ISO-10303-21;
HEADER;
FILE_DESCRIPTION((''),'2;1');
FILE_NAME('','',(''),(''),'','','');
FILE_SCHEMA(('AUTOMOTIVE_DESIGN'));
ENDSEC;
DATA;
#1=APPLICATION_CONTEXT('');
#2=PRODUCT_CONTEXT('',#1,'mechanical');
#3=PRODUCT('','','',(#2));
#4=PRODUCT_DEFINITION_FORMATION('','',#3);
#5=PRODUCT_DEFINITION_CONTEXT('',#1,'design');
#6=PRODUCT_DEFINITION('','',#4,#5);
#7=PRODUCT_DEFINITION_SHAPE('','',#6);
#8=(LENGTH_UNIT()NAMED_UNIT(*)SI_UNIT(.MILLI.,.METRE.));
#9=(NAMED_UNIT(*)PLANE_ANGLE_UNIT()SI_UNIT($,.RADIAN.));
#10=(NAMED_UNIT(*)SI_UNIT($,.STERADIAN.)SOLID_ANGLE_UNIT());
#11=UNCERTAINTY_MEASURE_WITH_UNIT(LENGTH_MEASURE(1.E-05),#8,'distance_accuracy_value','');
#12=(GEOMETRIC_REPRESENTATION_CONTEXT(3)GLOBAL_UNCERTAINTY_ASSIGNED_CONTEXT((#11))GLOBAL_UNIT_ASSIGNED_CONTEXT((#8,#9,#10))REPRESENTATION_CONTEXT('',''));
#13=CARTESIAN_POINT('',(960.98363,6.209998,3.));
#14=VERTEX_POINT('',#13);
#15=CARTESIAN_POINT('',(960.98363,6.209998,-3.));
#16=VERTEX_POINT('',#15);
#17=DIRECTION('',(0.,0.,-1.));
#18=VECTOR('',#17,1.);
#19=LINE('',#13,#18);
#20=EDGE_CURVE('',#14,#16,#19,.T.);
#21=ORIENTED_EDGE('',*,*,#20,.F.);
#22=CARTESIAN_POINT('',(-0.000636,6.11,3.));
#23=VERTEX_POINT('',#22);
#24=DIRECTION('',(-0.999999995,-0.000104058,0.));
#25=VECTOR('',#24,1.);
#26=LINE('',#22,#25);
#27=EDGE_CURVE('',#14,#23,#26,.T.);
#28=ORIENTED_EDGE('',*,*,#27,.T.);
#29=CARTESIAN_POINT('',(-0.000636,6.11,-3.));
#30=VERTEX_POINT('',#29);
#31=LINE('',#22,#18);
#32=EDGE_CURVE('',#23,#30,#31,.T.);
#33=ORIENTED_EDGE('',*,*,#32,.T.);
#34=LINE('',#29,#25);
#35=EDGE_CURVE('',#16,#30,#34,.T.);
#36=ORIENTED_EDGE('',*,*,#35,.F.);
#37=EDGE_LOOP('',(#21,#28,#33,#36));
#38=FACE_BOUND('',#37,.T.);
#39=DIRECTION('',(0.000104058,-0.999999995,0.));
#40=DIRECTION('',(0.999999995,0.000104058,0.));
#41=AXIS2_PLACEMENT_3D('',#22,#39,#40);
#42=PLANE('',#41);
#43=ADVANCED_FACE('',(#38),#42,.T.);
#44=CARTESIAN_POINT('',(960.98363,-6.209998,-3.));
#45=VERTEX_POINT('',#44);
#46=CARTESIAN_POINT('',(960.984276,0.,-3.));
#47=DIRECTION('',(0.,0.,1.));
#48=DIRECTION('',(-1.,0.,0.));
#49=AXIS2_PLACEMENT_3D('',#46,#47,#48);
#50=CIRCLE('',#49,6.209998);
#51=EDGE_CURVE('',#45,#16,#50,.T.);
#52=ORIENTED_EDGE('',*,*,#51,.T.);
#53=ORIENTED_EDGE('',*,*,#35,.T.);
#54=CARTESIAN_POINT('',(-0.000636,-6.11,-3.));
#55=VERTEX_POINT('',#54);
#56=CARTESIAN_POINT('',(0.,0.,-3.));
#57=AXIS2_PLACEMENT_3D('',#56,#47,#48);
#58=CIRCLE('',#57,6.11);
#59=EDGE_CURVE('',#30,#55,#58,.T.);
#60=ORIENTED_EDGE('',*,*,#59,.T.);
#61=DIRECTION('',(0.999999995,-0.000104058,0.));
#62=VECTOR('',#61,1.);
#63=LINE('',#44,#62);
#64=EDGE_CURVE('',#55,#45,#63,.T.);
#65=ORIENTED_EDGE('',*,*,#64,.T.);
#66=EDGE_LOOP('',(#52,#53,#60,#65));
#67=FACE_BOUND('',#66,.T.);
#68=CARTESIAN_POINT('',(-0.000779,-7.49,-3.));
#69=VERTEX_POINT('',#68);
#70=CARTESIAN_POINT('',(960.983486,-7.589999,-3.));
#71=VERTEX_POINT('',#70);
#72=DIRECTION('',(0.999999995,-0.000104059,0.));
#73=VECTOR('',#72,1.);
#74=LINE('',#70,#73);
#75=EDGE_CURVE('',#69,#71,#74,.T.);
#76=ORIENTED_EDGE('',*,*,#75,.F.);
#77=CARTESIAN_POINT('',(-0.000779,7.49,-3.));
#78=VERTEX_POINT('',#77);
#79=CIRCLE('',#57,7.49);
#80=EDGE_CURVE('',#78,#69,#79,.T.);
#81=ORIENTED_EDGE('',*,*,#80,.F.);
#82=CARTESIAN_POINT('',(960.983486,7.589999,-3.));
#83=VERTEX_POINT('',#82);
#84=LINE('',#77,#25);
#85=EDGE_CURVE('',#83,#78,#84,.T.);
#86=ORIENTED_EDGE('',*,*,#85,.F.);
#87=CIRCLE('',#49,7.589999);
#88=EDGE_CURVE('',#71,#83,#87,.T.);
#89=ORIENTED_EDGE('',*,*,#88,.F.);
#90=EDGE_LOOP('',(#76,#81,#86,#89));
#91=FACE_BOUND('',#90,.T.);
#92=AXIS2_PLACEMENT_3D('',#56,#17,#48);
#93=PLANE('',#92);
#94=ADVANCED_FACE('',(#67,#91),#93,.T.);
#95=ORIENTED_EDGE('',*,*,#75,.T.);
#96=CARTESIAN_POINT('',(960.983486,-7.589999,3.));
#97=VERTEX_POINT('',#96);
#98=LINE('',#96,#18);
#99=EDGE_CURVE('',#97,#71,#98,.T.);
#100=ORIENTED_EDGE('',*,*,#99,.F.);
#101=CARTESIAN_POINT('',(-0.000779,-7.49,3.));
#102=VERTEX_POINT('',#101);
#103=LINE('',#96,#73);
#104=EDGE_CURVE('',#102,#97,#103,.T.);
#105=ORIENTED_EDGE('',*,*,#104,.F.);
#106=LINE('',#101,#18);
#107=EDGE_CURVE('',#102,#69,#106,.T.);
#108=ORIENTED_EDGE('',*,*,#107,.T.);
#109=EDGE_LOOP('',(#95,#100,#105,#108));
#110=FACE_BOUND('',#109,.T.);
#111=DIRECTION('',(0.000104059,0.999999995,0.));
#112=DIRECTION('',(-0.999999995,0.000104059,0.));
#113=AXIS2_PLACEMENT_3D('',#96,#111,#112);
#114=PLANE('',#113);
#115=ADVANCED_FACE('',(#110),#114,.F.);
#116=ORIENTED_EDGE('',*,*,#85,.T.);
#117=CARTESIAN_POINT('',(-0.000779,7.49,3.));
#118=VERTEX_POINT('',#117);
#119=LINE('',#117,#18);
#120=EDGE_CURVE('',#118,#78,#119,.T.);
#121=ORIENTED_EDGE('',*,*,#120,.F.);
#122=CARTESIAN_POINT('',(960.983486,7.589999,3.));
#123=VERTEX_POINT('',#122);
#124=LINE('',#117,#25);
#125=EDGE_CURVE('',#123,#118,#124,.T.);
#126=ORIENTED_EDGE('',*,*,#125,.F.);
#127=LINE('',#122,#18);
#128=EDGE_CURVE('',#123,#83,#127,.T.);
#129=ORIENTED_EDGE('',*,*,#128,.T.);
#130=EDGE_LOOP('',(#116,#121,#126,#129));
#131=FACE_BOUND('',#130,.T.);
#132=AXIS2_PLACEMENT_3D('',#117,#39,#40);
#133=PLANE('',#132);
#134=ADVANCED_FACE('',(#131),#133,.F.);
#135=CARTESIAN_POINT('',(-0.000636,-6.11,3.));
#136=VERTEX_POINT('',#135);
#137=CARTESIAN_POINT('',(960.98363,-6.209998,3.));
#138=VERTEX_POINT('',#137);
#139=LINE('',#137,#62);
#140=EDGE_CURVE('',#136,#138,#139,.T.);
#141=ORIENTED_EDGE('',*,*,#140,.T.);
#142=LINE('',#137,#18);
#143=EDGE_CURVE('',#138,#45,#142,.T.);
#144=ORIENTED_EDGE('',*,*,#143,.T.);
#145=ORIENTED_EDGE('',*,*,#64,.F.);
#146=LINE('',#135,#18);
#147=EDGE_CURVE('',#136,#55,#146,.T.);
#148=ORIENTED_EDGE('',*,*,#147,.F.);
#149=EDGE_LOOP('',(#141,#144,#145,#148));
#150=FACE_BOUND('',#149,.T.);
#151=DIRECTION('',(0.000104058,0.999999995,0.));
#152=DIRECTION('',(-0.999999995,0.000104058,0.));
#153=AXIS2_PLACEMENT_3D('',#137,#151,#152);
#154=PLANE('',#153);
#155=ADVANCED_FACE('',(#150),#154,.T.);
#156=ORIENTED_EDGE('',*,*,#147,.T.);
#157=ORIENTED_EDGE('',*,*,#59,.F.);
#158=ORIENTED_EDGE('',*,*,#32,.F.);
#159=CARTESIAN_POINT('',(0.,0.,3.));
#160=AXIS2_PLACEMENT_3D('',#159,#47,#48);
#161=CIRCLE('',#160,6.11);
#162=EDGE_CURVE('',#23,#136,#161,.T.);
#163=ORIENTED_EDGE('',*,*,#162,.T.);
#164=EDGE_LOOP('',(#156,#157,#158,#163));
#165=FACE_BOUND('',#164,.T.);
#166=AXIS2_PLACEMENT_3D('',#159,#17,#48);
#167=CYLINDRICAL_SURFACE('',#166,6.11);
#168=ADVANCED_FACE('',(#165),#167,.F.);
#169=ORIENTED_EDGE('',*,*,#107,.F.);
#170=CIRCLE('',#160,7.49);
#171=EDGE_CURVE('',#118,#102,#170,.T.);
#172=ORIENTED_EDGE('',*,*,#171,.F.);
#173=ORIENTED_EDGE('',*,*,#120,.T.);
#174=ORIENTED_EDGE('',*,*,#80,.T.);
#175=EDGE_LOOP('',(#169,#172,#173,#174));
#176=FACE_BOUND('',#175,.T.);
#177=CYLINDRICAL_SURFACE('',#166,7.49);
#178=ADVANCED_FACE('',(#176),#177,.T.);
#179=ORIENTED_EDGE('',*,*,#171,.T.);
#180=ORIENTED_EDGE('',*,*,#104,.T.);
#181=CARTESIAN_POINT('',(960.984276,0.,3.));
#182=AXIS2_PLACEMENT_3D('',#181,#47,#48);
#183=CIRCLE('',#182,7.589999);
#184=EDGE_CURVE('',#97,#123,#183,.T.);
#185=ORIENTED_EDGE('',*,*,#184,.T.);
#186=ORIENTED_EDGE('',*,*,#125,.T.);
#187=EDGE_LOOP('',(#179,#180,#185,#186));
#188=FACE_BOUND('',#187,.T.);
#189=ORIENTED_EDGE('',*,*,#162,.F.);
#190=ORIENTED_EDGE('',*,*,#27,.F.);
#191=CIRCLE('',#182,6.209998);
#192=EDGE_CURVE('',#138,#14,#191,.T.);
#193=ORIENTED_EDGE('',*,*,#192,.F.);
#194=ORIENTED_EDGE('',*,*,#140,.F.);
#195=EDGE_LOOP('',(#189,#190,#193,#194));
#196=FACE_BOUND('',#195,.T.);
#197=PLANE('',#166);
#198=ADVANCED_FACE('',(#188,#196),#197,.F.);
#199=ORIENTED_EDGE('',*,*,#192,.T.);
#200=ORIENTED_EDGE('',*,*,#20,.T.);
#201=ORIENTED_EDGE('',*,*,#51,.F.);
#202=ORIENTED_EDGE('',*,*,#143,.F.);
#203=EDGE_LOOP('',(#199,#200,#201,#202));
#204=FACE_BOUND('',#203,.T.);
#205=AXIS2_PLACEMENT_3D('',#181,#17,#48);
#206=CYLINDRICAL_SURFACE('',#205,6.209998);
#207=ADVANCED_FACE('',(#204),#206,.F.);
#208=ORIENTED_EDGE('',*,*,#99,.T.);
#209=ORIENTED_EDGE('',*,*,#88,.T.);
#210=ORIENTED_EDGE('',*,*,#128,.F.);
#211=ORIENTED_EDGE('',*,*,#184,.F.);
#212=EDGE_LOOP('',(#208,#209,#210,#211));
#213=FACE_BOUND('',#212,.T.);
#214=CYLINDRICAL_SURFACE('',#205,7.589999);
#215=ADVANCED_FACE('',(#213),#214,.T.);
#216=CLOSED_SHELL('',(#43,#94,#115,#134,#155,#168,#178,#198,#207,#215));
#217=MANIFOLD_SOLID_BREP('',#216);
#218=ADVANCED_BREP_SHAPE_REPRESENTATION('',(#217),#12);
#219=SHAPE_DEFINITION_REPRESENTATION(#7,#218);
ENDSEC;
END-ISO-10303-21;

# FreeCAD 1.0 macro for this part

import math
import FreeCAD as App
import Part
import Sketcher

doc = App.newDocument("Part")
body = doc.addObject("PartDesign::Body", "Body")

# Sketch on XY plane
sketch1 = body.newObject("Sketcher::SketchObject", "Sketch")
sketch1.AttachmentSupport = (doc.getObject("XY_Plane"), [""])
sketch1.MapMode = "FlatFace"
sketch1.addGeometry(Part.LineSegment(App.Vector(961, 8, 0), App.Vector(0, 7, 0)), False)
sketch1.addGeometry(Part.ArcOfCircle(Part.Circle(App.Vector(0, 0, 0), App.Vector(0, 0, 1), 7), math.radians(90), math.radians(270)), False)
sketch1.addGeometry(Part.LineSegment(App.Vector(0, -7, 0), App.Vector(961, -8, 0)), False)
sketch1.addGeometry(Part.ArcOfCircle(Part.Circle(App.Vector(961, 0, 0), App.Vector(0, 0, 1), 8), math.radians(-90), math.radians(90)), False)
sketch1.addGeometry(Part.LineSegment(App.Vector(961, -6, 0), App.Vector(0, -6, 0)), False)
sketch1.addGeometry(Part.ArcOfCircle(Part.Circle(App.Vector(0, 0, 0), App.Vector(0, 0, 1), 6), math.radians(90), math.radians(270)), False)
sketch1.addGeometry(Part.LineSegment(App.Vector(0, 6, 0), App.Vector(961, 6, 0)), False)
sketch1.addGeometry(Part.ArcOfCircle(Part.Circle(App.Vector(961, 0, 0), App.Vector(0, 0, 1), 6), math.radians(-90), math.radians(90)), False)
sketch1.addConstraint(Sketcher.Constraint("Tangent", 0, 2, 1, 1))
sketch1.addConstraint(Sketcher.Constraint("Tangent", 1, 2, 2, 1))
sketch1.addConstraint(Sketcher.Constraint("Tangent", 2, 2, 3, 1))
sketch1.addConstraint(Sketcher.Constraint("Tangent", 3, 2, 0, 1))
sketch1.addConstraint(Sketcher.Constraint("Tangent", 4, 2, 5, 2))
sketch1.addConstraint(Sketcher.Constraint("Tangent", 5, 1, 6, 1))
sketch1.addConstraint(Sketcher.Constraint("Tangent", 6, 2, 7, 2))
sketch1.addConstraint(Sketcher.Constraint("Tangent", 7, 1, 4, 1))
sketch1.addConstraint(Sketcher.Constraint("Coincident", 1, 3, -1, 1))
sketch1.addConstraint(Sketcher.Constraint("Coincident", 5, 3, -1, 1))
sketch1.addConstraint(Sketcher.Constraint("Coincident", 7, 3, 3, 3))
sketch1.addConstraint(Sketcher.Constraint("PointOnObject", 3, 3, -1))
sketch1.addConstraint(Sketcher.Constraint("Parallel", 2, 4))
sketch1.addConstraint(Sketcher.Constraint("Radius", 1, 7.49))
sketch1.addConstraint(Sketcher.Constraint("Radius", 3, 7.589999))
sketch1.addConstraint(Sketcher.Constraint("Radius", 5, 6.11))
sketch1.addConstraint(Sketcher.Constraint("Distance", 0, 960.984271))
pad1 = body.newObject("PartDesign::Pad", "Pad")
pad1.Profile = sketch1
pad1.Length = 6
pad1.Midplane = True

doc.recompute()
